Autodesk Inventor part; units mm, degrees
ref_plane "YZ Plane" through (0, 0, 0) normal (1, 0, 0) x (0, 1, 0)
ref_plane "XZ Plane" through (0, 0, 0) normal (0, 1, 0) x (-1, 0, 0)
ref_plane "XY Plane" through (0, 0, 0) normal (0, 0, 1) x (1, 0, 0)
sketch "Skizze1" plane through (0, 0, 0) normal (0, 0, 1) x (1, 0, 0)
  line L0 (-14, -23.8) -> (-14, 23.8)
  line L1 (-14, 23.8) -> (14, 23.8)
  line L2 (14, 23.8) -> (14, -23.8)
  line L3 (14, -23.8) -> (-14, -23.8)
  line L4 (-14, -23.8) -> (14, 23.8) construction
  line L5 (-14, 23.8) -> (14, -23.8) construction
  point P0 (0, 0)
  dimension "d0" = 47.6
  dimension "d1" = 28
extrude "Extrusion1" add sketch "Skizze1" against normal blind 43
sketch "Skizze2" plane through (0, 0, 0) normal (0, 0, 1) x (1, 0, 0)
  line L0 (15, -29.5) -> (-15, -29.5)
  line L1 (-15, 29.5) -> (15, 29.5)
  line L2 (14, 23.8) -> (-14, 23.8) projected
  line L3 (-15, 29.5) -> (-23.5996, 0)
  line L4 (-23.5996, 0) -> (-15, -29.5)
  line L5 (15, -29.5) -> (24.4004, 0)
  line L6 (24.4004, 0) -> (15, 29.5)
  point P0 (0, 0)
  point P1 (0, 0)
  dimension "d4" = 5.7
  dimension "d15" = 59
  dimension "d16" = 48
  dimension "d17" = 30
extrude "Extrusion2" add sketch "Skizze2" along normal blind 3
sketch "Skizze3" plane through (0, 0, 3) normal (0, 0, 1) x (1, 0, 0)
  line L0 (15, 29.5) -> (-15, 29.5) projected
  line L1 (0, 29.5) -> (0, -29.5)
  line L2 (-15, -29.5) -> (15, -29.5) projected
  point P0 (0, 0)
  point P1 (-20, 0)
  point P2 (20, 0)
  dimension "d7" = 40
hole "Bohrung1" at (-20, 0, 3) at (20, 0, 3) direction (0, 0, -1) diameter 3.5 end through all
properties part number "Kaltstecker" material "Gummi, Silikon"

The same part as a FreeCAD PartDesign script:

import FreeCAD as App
import Part
import Sketcher

doc = App.newDocument("Part")
body = doc.addObject("PartDesign::Body", "Body")

# Sketch on XY plane
sketch1 = doc.addObject("Sketcher::SketchObject", "Sketch")
body.addObject(sketch1)
sketch1.AttachmentSupport = (doc.XY_Plane, [""])
sketch1.MapMode = "FlatFace"
sketch1.addGeometry(Part.LineSegment(App.Vector(-14, 24, 0), App.Vector(-14, -24, 0)), False)
sketch1.addGeometry(Part.LineSegment(App.Vector(-14, -24, 0), App.Vector(14, -24, 0)), False)
sketch1.addGeometry(Part.LineSegment(App.Vector(14, -24, 0), App.Vector(14, 24, 0)), False)
sketch1.addGeometry(Part.LineSegment(App.Vector(14, 24, 0), App.Vector(-14, 24, 0)), False)
sketch1.addConstraint(Sketcher.Constraint("Coincident", 0, 2, 1, 1))
sketch1.addConstraint(Sketcher.Constraint("Coincident", 1, 2, 2, 1))
sketch1.addConstraint(Sketcher.Constraint("Coincident", 2, 2, 3, 1))
sketch1.addConstraint(Sketcher.Constraint("Coincident", 3, 2, 0, 1))
sketch1.addConstraint(Sketcher.Constraint("Vertical", 0))
sketch1.addConstraint(Sketcher.Constraint("Horizontal", 1))
sketch1.addConstraint(Sketcher.Constraint("Vertical", 2))
sketch1.addConstraint(Sketcher.Constraint("Horizontal", 3))
sketch1.addConstraint(Sketcher.Constraint("Symmetric", 0, 2, 2, 2, -1, 1))
sketch1.addConstraint(Sketcher.Constraint("DistanceX", 1, 1, 1, 2, 28.0))
sketch1.addConstraint(Sketcher.Constraint("DistanceY", 0, 2, 0, 1, 47.6))
pad1 = doc.addObject("PartDesign::Pad", "Pad")
body.addObject(pad1)
pad1.Profile = sketch1
pad1.Length = 43
pad1.Reversed = True

# Sketch on XY plane
sketch2 = doc.addObject("Sketcher::SketchObject", "Sketch001")
body.addObject(sketch2)
sketch2.AttachmentSupport = (doc.XY_Plane, [""])
sketch2.MapMode = "FlatFace"
sketch2.addGeometry(Part.LineSegment(App.Vector(-15, -30, 0), App.Vector(15, -30, 0)), False)
sketch2.addGeometry(Part.LineSegment(App.Vector(15, -30, 0), App.Vector(24, 0, 0)), False)
sketch2.addGeometry(Part.LineSegment(App.Vector(24, 0, 0), App.Vector(15, 30, 0)), False)
sketch2.addGeometry(Part.LineSegment(App.Vector(15, 30, 0), App.Vector(-15, 30, 0)), False)
sketch2.addGeometry(Part.LineSegment(App.Vector(-15, 30, 0), App.Vector(-24, 0, 0)), False)
sketch2.addGeometry(Part.LineSegment(App.Vector(-24, 0, 0), App.Vector(-15, -30, 0)), False)
sketch2.addConstraint(Sketcher.Constraint("Coincident", 0, 2, 1, 1))
sketch2.addConstraint(Sketcher.Constraint("Coincident", 1, 2, 2, 1))
sketch2.addConstraint(Sketcher.Constraint("Coincident", 2, 2, 3, 1))
sketch2.addConstraint(Sketcher.Constraint("Coincident", 3, 2, 4, 1))
sketch2.addConstraint(Sketcher.Constraint("Coincident", 4, 2, 5, 1))
sketch2.addConstraint(Sketcher.Constraint("Coincident", 5, 2, 0, 1))
sketch2.addConstraint(Sketcher.Constraint("Horizontal", 0))
sketch2.addConstraint(Sketcher.Constraint("Horizontal", 3))
sketch2.addConstraint(Sketcher.Constraint("Symmetric", 0, 2, 3, 2, -1, 1))
sketch2.addConstraint(Sketcher.Constraint("PointOnObject", 1, 2, -1))
sketch2.addConstraint(Sketcher.Constraint("PointOnObject", 4, 2, -1))
sketch2.addConstraint(Sketcher.Constraint("Vertical", 0, 2, 2, 2))
sketch2.addConstraint(Sketcher.Constraint("Vertical", 3, 2, 5, 2))
sketch2.addConstraint(Sketcher.Constraint("DistanceX", 0, 1, 0, 2, 30.0))
sketch2.addConstraint(Sketcher.Constraint("DistanceY", 0, 2, 2, 2, 59.0))
sketch2.addConstraint(Sketcher.Constraint("DistanceX", 4, 2, 1, 2, 48.0))
sketch2.addConstraint(Sketcher.Constraint("Distance", 4, 30.728))
pad2 = doc.addObject("PartDesign::Pad", "Pad001")
body.addObject(pad2)
pad2.Profile = sketch2
pad2.Length = 3

# Sketch on XY plane
sketch3 = doc.addObject("Sketcher::SketchObject", "Sketch002")
body.addObject(sketch3)
sketch3.AttachmentSupport = (doc.XY_Plane, [""])
sketch3.MapMode = "FlatFace"
sketch3.AttachmentOffset = App.Placement(App.Vector(0, 0, 3), App.Rotation())
sketch3.addGeometry(Part.Circle(App.Vector(-20, 0, 0), App.Vector(0, 0, 1), 1.8), False)
sketch3.addGeometry(Part.Circle(App.Vector(20, 0, 0), App.Vector(0, 0, 1), 1.8), False)
sketch3.addConstraint(Sketcher.Constraint("Equal", 0, 1))
sketch3.addConstraint(Sketcher.Constraint("Symmetric", 0, 3, 1, 3, -1, 1))
sketch3.addConstraint(Sketcher.Constraint("PointOnObject", 0, 3, -1))
sketch3.addConstraint(Sketcher.Constraint("Diameter", 0, 3.5))
sketch3.addConstraint(Sketcher.Constraint("DistanceX", 0, 3, -1, 1, 20.0))
doc.recompute()
hole = doc.addObject("PartDesign::Hole", "Hole")
body.addObject(hole)
hole.Profile = sketch3
hole.ThreadType = "None"
hole.Diameter = 3.5
hole.DepthType = "ThroughAll"

doc.recompute()
